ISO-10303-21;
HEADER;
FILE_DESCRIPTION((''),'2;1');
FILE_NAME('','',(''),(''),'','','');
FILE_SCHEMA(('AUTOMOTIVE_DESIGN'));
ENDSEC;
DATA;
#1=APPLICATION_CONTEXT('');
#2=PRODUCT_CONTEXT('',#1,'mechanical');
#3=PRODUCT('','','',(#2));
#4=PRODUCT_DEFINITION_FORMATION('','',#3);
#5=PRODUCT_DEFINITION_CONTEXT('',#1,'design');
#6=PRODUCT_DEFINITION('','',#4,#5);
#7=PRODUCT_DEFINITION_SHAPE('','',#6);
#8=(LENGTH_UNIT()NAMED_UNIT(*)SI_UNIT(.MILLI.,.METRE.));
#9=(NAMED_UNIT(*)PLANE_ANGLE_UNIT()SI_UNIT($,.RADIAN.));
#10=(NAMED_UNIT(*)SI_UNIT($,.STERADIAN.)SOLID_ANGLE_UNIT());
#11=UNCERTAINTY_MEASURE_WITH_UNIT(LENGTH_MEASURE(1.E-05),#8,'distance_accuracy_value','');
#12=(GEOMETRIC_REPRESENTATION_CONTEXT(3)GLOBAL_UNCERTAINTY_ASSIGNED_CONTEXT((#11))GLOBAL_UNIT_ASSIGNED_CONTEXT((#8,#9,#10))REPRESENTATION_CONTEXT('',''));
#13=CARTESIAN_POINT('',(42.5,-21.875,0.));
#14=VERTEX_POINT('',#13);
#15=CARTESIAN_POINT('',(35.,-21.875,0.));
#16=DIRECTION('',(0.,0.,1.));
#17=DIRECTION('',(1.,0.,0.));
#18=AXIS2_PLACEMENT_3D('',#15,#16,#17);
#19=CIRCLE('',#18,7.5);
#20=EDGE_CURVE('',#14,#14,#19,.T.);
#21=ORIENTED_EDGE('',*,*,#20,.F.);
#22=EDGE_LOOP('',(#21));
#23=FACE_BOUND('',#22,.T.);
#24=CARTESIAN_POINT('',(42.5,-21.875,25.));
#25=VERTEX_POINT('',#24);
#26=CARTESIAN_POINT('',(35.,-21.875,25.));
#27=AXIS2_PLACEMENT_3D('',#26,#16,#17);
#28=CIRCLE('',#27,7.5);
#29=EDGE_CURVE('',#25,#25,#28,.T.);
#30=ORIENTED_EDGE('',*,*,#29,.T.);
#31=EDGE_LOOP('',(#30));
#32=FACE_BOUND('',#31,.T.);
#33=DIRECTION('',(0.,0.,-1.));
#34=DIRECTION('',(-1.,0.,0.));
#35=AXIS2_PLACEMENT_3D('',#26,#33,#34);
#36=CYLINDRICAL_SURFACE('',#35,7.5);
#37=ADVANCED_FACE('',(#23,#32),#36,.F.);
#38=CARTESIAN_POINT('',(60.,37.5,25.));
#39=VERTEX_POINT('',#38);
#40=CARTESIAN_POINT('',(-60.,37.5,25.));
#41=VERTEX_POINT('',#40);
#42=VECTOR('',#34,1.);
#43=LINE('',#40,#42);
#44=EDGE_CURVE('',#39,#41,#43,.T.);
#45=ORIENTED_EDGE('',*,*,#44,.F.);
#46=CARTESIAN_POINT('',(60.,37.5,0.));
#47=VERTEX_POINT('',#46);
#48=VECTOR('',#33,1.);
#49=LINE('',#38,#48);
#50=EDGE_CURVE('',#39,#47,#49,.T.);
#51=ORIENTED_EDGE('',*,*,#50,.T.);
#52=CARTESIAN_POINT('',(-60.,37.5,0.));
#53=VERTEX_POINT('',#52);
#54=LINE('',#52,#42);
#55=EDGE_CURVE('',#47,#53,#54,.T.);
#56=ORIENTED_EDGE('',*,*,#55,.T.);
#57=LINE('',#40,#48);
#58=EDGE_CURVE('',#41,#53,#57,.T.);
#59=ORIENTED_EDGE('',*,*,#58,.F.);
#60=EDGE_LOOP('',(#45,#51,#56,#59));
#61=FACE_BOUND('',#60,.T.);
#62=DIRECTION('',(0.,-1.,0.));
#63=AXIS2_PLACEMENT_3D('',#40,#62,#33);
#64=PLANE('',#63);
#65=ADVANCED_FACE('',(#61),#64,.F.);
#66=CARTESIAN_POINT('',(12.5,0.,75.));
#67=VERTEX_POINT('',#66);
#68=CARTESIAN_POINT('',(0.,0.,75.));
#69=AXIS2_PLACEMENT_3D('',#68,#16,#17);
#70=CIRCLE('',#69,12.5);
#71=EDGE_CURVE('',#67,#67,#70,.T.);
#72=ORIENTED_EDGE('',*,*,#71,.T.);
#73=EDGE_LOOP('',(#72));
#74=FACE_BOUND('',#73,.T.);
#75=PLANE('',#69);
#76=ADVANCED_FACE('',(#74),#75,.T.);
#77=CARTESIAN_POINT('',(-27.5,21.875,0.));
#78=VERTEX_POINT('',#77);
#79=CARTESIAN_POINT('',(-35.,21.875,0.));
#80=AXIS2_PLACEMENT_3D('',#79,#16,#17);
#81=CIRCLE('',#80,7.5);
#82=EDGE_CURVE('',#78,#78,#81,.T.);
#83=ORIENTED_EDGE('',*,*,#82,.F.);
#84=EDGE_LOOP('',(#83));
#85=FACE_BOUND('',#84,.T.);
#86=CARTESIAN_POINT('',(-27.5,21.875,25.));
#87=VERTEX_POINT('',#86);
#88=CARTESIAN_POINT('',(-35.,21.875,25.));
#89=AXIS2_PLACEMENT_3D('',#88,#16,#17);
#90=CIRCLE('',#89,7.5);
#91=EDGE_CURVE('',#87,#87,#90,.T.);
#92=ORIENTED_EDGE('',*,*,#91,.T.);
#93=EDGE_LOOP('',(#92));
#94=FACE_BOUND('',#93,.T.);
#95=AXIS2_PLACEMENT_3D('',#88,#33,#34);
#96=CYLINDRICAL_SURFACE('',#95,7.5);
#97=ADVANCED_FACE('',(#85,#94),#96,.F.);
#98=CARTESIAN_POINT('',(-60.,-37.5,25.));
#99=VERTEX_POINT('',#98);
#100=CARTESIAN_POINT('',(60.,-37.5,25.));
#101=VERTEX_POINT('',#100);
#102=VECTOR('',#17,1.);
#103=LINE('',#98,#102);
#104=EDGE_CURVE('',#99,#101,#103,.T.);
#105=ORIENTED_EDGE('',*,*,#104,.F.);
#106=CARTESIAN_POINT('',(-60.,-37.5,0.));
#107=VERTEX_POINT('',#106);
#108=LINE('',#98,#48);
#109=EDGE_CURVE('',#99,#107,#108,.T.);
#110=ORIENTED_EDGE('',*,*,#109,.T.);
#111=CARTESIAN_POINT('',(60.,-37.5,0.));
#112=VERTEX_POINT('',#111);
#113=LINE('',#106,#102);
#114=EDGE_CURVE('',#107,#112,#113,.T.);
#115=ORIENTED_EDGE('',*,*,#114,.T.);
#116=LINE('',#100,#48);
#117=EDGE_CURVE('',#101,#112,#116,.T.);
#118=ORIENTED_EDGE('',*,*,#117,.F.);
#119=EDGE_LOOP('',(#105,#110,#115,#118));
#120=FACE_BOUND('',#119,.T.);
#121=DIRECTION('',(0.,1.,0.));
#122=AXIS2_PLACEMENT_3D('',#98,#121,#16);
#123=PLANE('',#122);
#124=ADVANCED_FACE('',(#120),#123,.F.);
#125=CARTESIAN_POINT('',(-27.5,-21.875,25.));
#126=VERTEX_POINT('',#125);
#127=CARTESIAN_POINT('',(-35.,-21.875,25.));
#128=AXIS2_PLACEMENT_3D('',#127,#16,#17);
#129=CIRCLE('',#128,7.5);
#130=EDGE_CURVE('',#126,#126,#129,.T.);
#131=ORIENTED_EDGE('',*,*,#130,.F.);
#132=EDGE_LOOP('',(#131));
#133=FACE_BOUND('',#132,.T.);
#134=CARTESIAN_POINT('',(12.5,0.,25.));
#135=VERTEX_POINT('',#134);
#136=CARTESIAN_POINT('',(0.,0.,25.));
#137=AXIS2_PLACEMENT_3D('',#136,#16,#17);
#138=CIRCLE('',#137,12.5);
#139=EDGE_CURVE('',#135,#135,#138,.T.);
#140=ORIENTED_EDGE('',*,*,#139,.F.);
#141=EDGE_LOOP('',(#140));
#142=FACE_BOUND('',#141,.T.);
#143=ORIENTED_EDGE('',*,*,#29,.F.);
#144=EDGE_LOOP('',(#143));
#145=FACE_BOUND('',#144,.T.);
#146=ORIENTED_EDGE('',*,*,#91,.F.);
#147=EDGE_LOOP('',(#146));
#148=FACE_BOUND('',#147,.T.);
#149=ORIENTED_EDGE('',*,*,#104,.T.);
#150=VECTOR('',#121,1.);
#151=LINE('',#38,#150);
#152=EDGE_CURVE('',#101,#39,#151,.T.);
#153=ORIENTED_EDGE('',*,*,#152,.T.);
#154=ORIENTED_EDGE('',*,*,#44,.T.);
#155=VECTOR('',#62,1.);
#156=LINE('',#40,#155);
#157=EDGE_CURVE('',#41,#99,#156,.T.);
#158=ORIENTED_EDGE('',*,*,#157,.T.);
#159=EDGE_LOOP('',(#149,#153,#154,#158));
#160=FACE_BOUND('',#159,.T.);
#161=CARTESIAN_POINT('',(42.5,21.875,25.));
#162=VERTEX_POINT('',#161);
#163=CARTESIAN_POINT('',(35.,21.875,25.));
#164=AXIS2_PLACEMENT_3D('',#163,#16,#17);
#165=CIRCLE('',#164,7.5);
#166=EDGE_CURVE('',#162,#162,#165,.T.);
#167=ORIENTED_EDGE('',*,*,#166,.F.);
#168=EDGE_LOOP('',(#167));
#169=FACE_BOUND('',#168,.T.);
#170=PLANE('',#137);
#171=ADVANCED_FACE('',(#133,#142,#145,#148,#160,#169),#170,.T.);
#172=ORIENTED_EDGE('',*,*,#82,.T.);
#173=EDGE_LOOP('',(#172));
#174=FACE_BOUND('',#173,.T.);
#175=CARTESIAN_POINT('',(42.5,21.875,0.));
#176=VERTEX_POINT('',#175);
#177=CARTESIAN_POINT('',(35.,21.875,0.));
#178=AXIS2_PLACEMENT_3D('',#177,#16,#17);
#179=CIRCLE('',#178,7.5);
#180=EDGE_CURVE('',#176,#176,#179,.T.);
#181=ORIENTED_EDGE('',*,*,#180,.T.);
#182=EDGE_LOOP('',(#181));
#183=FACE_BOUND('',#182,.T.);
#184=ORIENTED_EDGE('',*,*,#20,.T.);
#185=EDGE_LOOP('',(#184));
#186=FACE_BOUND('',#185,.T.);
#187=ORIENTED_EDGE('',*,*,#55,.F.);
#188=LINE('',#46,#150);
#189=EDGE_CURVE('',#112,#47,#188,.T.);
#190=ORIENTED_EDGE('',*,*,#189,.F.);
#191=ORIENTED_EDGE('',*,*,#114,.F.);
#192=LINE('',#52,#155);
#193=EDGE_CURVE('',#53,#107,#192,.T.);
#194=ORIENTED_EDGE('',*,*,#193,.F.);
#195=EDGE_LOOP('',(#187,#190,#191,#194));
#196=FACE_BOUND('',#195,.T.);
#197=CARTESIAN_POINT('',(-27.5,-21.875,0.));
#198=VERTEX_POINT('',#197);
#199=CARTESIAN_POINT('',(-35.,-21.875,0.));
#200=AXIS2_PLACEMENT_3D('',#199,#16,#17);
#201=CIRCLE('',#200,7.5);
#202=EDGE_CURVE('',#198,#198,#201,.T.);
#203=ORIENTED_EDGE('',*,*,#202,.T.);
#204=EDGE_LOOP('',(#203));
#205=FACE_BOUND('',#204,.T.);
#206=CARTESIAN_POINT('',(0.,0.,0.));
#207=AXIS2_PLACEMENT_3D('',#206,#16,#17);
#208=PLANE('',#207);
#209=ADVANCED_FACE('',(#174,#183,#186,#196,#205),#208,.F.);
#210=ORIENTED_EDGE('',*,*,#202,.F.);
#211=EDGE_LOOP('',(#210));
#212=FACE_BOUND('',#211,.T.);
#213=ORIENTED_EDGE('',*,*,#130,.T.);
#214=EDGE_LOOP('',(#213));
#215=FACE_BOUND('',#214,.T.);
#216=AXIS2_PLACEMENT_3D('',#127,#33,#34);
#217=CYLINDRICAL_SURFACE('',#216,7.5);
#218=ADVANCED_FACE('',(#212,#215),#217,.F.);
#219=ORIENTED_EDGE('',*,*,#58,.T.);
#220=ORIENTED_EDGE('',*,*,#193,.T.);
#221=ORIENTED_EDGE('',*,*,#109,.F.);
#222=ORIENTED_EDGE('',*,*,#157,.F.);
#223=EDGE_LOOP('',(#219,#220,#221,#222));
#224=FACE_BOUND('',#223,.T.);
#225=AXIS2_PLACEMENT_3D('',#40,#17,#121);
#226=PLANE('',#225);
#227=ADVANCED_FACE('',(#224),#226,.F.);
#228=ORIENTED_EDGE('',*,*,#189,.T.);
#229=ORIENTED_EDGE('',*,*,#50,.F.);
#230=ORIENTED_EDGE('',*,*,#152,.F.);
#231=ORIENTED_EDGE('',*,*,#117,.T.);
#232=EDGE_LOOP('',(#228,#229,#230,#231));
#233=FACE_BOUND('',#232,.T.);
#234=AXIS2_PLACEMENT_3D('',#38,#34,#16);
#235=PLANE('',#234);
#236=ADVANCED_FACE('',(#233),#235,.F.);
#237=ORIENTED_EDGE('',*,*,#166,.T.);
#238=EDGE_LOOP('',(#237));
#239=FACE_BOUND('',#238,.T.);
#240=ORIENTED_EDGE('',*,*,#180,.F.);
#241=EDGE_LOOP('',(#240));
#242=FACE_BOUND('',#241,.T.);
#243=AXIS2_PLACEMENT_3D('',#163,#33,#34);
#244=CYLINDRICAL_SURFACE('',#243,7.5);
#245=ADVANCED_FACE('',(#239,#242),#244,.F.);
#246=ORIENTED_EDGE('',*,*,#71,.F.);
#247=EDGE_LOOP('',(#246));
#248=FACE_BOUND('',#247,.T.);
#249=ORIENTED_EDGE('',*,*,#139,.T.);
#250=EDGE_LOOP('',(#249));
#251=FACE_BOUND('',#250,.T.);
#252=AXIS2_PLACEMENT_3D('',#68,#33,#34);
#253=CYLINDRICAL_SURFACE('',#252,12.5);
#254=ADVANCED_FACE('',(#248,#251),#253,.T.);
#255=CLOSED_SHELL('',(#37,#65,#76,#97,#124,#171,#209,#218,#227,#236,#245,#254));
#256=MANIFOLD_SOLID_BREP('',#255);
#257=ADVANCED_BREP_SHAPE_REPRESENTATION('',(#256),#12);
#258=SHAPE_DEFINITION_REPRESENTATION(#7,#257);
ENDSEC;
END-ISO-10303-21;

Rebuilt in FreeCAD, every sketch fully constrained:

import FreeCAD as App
import Part
import Sketcher

doc = App.newDocument("Part")
params = doc.addObject("Spreadsheet::Sheet", "Params")
for row, (alias, value) in enumerate([
    ("sketch1_diameter", "15 mm"),
    ("sketch1_width", "120 mm"),
    ("sketch1_height", "75 mm"),
    ("pad1_length", "25 mm"),
    ("sketch2_diameter", "25 mm"),
    ("pad2_length", "50 mm"),
], start=1):
    params.set(f"A{row}", alias)
    params.set(f"B{row}", "=" + value)
    params.setAlias(f"B{row}", alias)

body = doc.addObject("PartDesign::Body", "Body")

sketch1 = doc.addObject("Sketcher::SketchObject", "Sketch")
body.addObject(sketch1)
sketch1.AttachmentSupport = (doc.XY_Plane, [""])
sketch1.MapMode = "FlatFace"
sketch1.addGeometry(Part.LineSegment(App.Vector(-60, 38, 0), App.Vector(-60, -38, 0)), False)
sketch1.addGeometry(Part.LineSegment(App.Vector(-60, -38, 0), App.Vector(60, -38, 0)), False)
sketch1.addGeometry(Part.LineSegment(App.Vector(60, -38, 0), App.Vector(60, 38, 0)), False)
sketch1.addGeometry(Part.LineSegment(App.Vector(60, 38, 0), App.Vector(-60, 38, 0)), False)
sketch1.addGeometry(Part.Circle(App.Vector(-35, -22, 0), App.Vector(0, 0, 1), 8), False)
sketch1.addGeometry(Part.Circle(App.Vector(35, -22, 0), App.Vector(0, 0, 1), 8), False)
sketch1.addGeometry(Part.Circle(App.Vector(-35, 22, 0), App.Vector(0, 0, 1), 8), False)
sketch1.addGeometry(Part.Circle(App.Vector(35, 22, 0), App.Vector(0, 0, 1), 8), False)
sketch1.addConstraint(Sketcher.Constraint("Coincident", 0, 2, 1, 1))
sketch1.addConstraint(Sketcher.Constraint("Coincident", 1, 2, 2, 1))
sketch1.addConstraint(Sketcher.Constraint("Coincident", 2, 2, 3, 1))
sketch1.addConstraint(Sketcher.Constraint("Coincident", 3, 2, 0, 1))
sketch1.addConstraint(Sketcher.Constraint("Vertical", 0))
sketch1.addConstraint(Sketcher.Constraint("Horizontal", 1))
sketch1.addConstraint(Sketcher.Constraint("Vertical", 2))
sketch1.addConstraint(Sketcher.Constraint("Horizontal", 3))
sketch1.addConstraint(Sketcher.Constraint("Equal", 4, 5))
sketch1.addConstraint(Sketcher.Constraint("Equal", 5, 6))
sketch1.addConstraint(Sketcher.Constraint("Equal", 6, 7))
sketch1.addConstraint(Sketcher.Constraint("Symmetric", 5, 3, 6, 3, -1, 1))
sketch1.addConstraint(Sketcher.Constraint("Symmetric", 4, 3, 7, 3, -1, 1))
sketch1.addConstraint(Sketcher.Constraint("Symmetric", 0, 2, 2, 2, -1, 1))
sketch1.addConstraint(Sketcher.Constraint("Symmetric", 4, 3, 5, 3, -2))
sketch1.addConstraint(Sketcher.Constraint("Diameter", 4, 15.0))
sketch1.addConstraint(Sketcher.Constraint("DistanceX", 1, 1, 1, 2, 120.0))
sketch1.addConstraint(Sketcher.Constraint("DistanceY", 0, 2, 0, 1, 75.0))
sketch1.addConstraint(Sketcher.Constraint("DistanceX", 4, 3, -1, 1, 35.0))
sketch1.addConstraint(Sketcher.Constraint("DistanceY", 4, 3, 6, 3, 43.75))
sketch1.setExpression("Constraints[15]", "Params.sketch1_diameter")
sketch1.setExpression("Constraints[16]", "Params.sketch1_width")
sketch1.setExpression("Constraints[17]", "Params.sketch1_height")
pad1 = doc.addObject("PartDesign::Pad", "Pad")
body.addObject(pad1)
pad1.Profile = sketch1
pad1.setExpression("Length", "Params.pad1_length")

sketch2 = doc.addObject("Sketcher::SketchObject", "Sketch001")
body.addObject(sketch2)
sketch2.AttachmentSupport = (doc.XY_Plane, [""])
sketch2.MapMode = "FlatFace"
sketch2.AttachmentOffset = App.Placement(App.Vector(0, 0, 25), App.Rotation())
sketch2.addGeometry(Part.Circle(App.Vector(0, 0, 0), App.Vector(0, 0, 1), 12), False)
sketch2.addConstraint(Sketcher.Constraint("Coincident", 0, 3, -1, 1))
sketch2.addConstraint(Sketcher.Constraint("Diameter", 0, 25.0))
sketch2.setExpression("Constraints[1]", "Params.sketch2_diameter")
pad2 = doc.addObject("PartDesign::Pad", "Pad001")
body.addObject(pad2)
pad2.Profile = sketch2
pad2.setExpression("Length", "Params.pad2_length")

doc.recompute()
